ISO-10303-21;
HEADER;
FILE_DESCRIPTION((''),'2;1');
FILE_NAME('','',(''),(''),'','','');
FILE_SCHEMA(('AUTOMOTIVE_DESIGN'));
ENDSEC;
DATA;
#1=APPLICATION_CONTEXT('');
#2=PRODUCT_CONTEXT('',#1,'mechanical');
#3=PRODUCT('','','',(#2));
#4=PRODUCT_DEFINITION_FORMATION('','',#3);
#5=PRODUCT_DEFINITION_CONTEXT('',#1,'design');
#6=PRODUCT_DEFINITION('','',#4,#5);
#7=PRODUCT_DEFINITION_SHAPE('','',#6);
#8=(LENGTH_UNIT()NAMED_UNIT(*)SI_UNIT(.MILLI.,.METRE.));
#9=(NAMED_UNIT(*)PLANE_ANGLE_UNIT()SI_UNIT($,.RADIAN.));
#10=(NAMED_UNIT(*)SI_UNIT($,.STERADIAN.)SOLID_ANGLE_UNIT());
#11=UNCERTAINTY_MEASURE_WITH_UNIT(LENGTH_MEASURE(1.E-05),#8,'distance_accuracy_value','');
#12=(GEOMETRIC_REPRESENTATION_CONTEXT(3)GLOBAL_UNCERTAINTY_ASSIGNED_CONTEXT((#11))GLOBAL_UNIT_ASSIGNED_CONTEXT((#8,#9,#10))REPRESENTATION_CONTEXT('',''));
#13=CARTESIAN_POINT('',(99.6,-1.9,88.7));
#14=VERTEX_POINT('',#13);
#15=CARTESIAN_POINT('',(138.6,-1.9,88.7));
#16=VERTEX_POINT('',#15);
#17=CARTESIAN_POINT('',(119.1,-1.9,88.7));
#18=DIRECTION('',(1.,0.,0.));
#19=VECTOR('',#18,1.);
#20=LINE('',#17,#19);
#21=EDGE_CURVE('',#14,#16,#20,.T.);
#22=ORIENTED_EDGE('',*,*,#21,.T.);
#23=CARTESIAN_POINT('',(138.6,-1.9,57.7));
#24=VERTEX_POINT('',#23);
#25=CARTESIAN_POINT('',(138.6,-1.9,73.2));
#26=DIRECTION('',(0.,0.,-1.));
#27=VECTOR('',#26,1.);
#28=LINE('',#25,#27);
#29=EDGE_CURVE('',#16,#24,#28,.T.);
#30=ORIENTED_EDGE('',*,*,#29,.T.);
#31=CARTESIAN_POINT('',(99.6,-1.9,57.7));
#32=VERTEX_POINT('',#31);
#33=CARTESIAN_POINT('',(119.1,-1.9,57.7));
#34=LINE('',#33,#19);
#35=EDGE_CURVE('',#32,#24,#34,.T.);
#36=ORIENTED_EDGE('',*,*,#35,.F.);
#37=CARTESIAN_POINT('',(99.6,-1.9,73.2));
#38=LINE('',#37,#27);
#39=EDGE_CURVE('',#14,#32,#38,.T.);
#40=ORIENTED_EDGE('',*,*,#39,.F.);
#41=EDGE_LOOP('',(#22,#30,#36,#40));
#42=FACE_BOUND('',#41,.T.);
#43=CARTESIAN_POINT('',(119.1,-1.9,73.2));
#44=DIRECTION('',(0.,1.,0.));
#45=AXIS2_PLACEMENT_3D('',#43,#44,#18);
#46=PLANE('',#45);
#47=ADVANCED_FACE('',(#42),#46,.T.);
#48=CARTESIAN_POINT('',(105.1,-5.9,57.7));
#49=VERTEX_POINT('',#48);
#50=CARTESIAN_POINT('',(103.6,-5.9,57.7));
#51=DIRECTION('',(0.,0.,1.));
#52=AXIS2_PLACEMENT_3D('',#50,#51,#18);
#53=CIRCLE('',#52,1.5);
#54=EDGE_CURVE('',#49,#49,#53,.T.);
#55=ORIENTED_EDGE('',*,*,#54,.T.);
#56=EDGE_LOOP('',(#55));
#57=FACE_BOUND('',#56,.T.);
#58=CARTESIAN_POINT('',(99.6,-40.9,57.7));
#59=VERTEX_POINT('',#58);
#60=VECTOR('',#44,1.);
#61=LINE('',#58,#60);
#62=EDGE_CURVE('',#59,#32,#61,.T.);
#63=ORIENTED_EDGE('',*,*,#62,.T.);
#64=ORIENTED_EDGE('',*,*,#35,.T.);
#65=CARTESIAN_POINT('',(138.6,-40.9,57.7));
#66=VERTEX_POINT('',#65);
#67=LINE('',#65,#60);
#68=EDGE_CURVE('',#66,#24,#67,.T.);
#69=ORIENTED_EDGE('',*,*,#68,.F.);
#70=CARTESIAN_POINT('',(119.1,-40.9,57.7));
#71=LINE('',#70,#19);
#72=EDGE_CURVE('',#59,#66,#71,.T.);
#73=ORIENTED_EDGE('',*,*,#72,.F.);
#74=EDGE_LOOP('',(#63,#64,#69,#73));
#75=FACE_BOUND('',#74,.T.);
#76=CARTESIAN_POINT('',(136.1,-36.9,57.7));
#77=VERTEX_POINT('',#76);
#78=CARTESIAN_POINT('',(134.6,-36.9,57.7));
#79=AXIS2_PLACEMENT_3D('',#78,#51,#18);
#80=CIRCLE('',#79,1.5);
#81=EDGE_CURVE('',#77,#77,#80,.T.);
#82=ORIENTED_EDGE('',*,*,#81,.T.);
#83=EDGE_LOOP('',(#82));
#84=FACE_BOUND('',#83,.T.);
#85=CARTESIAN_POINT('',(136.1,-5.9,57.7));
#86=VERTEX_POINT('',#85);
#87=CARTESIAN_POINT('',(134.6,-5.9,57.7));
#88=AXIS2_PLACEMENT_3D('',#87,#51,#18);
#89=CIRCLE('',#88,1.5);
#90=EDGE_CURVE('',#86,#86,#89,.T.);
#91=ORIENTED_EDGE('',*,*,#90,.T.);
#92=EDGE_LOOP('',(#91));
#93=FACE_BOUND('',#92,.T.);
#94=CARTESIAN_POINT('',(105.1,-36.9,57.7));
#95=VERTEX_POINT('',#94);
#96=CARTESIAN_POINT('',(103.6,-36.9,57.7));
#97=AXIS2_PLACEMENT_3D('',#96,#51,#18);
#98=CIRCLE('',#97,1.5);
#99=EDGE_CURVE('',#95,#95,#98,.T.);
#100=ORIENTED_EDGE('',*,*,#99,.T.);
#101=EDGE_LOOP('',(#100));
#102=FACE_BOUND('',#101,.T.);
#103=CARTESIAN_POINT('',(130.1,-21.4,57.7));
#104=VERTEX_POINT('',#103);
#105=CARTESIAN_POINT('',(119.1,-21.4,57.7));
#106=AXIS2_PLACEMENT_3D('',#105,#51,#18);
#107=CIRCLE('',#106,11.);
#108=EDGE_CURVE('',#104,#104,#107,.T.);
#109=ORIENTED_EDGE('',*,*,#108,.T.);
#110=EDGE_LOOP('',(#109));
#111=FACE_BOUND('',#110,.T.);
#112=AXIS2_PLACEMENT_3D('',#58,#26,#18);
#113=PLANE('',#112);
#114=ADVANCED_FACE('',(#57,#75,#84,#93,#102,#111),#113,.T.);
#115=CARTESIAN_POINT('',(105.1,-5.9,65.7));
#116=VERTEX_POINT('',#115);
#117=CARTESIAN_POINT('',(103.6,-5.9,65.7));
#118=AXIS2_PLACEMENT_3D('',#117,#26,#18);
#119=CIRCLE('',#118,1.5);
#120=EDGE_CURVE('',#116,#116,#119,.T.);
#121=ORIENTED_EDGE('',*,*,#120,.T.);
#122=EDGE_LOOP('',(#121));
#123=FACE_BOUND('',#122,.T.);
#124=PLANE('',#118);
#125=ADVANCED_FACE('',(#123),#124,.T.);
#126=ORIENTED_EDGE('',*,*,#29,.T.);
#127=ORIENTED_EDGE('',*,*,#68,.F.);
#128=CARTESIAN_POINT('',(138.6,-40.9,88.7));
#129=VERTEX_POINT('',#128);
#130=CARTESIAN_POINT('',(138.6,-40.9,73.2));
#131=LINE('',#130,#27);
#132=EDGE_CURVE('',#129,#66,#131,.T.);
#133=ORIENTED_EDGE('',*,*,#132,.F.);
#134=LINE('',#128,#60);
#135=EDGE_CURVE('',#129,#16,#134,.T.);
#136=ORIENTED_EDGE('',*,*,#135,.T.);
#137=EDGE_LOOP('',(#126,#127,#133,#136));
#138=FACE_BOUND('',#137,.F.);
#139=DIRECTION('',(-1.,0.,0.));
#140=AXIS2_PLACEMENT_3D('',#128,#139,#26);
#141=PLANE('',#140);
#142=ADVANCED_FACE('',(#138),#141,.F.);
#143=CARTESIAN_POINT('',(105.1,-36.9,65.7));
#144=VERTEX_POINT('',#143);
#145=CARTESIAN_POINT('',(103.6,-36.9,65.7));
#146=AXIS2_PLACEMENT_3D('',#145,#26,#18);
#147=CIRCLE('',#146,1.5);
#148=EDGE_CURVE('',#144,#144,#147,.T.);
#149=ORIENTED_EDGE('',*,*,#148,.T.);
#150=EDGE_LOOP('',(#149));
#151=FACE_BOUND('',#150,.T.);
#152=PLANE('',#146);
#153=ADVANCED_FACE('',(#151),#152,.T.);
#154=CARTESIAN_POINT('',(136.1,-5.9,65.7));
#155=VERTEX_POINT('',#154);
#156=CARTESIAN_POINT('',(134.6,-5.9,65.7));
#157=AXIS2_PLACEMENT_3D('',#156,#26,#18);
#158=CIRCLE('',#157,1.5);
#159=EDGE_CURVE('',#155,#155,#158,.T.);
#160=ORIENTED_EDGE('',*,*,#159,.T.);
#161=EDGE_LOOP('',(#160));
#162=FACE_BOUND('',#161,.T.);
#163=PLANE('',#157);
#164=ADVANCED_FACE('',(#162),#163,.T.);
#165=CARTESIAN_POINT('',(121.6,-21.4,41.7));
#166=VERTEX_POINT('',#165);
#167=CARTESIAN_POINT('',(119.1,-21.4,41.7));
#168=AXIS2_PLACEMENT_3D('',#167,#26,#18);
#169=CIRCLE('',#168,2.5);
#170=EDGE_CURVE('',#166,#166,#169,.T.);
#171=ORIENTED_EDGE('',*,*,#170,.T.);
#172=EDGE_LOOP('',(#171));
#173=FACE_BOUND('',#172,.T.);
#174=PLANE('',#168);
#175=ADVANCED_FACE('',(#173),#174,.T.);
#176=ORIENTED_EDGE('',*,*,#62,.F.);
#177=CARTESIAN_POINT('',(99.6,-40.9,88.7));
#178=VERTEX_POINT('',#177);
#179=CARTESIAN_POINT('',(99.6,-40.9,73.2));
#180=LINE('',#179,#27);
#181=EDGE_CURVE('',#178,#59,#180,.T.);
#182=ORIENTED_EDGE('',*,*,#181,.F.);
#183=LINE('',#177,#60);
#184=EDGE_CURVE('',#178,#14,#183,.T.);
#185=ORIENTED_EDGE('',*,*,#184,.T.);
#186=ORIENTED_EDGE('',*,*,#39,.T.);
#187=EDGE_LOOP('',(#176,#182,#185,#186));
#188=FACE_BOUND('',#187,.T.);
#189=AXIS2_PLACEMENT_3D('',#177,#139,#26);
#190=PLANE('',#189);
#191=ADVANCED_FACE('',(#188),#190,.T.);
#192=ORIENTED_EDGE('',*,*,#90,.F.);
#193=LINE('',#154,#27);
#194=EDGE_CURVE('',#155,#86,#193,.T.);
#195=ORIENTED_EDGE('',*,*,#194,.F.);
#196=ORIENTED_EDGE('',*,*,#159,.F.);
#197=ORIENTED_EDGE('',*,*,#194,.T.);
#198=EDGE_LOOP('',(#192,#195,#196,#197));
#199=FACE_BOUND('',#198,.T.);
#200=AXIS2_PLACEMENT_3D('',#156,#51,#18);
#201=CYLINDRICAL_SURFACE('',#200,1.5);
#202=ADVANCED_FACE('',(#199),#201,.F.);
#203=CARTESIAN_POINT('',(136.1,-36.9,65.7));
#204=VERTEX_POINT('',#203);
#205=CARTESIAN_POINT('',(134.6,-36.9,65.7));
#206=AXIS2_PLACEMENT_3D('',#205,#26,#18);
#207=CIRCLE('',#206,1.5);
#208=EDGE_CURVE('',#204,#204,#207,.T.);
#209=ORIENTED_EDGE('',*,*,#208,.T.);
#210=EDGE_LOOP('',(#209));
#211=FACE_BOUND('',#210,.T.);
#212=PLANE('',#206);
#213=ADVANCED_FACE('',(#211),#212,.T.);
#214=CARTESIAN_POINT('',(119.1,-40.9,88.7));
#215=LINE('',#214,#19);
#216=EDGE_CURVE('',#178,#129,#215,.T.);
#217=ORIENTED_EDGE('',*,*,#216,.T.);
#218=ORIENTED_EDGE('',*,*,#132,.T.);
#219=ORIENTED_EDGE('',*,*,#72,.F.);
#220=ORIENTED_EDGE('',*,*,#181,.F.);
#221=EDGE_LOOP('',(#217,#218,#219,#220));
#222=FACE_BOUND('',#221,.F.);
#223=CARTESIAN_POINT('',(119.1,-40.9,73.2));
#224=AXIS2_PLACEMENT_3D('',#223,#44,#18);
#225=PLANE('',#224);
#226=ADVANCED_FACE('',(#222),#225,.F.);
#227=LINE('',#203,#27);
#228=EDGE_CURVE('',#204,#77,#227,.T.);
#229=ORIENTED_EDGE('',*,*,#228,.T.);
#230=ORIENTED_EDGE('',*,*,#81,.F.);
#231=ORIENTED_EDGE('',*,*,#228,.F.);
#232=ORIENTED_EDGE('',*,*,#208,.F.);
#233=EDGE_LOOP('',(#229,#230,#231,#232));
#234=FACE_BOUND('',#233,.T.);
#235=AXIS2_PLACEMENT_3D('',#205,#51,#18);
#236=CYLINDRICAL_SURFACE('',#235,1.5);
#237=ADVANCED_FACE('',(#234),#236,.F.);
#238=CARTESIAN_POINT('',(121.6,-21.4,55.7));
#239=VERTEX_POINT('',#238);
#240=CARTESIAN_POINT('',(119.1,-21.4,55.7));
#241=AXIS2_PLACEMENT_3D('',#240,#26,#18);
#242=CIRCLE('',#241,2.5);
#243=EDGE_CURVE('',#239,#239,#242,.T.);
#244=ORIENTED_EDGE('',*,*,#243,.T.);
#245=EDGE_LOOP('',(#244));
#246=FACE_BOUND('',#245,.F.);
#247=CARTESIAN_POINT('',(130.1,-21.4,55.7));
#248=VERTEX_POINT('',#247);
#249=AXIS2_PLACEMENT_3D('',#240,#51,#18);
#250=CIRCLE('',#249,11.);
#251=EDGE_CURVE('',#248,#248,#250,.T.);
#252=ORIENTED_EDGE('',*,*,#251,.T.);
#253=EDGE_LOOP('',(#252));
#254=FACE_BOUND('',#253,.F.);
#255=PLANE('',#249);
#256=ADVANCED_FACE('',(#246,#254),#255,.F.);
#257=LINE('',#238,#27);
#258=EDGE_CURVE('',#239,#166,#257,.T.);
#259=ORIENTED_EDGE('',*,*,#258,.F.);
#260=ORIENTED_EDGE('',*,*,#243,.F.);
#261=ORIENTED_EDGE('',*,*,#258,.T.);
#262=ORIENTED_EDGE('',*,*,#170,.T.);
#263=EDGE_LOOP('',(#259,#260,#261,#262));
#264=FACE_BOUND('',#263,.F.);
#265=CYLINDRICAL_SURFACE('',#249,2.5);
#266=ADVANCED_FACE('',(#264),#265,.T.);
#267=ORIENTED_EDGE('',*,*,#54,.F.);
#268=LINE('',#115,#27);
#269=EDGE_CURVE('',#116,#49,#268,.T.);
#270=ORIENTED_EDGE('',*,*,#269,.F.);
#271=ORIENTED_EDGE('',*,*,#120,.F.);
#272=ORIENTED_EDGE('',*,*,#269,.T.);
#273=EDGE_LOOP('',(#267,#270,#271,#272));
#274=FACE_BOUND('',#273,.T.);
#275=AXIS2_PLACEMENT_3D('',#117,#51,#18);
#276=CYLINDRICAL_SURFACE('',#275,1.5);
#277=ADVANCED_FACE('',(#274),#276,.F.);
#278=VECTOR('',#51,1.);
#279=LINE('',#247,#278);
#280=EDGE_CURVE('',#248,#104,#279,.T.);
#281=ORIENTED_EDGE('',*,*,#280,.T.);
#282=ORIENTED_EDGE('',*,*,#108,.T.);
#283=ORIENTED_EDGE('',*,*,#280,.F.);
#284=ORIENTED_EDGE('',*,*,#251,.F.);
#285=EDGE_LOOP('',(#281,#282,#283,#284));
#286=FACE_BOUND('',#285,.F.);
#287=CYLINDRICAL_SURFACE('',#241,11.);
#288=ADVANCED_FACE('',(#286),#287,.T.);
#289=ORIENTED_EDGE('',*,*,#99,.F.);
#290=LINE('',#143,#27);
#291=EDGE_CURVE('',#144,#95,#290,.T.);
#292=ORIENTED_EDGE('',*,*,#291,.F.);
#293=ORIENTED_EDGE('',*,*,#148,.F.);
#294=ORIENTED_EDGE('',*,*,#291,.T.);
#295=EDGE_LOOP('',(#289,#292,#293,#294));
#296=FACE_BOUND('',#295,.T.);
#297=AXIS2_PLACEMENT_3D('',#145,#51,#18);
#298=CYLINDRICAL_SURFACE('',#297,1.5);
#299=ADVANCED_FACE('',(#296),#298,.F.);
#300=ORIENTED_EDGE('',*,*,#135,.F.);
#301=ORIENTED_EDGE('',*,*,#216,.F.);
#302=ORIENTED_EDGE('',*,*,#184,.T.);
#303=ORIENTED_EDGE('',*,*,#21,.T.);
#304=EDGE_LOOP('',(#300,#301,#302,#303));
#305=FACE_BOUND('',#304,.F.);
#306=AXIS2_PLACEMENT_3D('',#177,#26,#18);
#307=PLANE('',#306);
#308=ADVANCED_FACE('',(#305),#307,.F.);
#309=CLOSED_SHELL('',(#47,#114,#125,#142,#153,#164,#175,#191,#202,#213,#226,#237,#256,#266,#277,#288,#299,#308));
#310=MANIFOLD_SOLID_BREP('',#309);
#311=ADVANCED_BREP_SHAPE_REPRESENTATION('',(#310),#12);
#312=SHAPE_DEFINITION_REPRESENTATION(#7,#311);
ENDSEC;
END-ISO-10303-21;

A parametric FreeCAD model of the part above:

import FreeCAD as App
import Part
import Sketcher


def add_polygon(sketch, points):
    """Adds a closed chain of lines whose ends are joined by coincident constraints."""
    first, n = sketch.GeometryCount, len(points)
    for a, b in zip(points, points[1:] + points[:1]):
        sketch.addGeometry(Part.LineSegment(App.Vector(*a, 0), App.Vector(*b, 0)), False)
    for i in range(n):
        sketch.addConstraint(Sketcher.Constraint("Coincident", first + i, 2, first + (i + 1) % n, 1))

doc = App.newDocument("Part")
params = doc.addObject("Spreadsheet::Sheet", "Params")
for row, (alias, value) in enumerate([
    ("sketch1_diameter", "22 mm"),
    ("pad1_length", "2 mm"),
    ("sketch2_diameter", "5 mm"),
    ("pad2_length", "14 mm"),
    ("sketch3_diameter", "3 mm"),
    ("pad3_length", "10 mm"),
    ("sketch4_diameter", "3 mm"),
    ("pad4_length", "10 mm"),
    ("sketch5_diameter", "3 mm"),
    ("pad5_length", "10 mm"),
    ("sketch6_diameter", "3 mm"),
    ("pad6_length", "10 mm"),
    ("sketch7_width", "39 mm"),
    ("sketch7_height", "31 mm"),
    ("pad7_length", "39 mm"),
], start=1):
    params.set(f"A{row}", alias)
    params.set(f"B{row}", "=" + value)
    params.setAlias(f"B{row}", alias)

body = doc.addObject("PartDesign::Body", "Body")

# Sketch on XZ plane
sketch1 = body.newObject("Sketcher::SketchObject", "Sketch")
sketch1.AttachmentSupport = (doc.getObject("XZ_Plane"), [""])
sketch1.MapMode = "FlatFace"
sketch1.AttachmentOffset = App.Placement(App.Vector(0, 0, -33), App.Rotation())
sketch1.addGeometry(Part.Circle(App.Vector(19.5, 19.5, 0), App.Vector(0, 0, 1), 11), False)
sketch1.addConstraint([
    Sketcher.Constraint("Diameter", 0, 22.0),
    Sketcher.Constraint("DistanceX", -1, 1, 0, 3, 19.5),
    Sketcher.Constraint("DistanceY", -1, 1, 0, 3, 19.5),
])
sketch1.setExpression("Constraints[0]", "Params.sketch1_diameter")
pad1 = body.newObject("PartDesign::Pad", "Pad")
pad1.Profile = sketch1
pad1.setExpression("Length", "Params.pad1_length")
body2 = doc.addObject("PartDesign::Body", "Body001")

# Sketch on XZ plane
sketch2 = body2.newObject("Sketcher::SketchObject", "Sketch001")
sketch2.AttachmentSupport = (doc.getObject("XZ_Plane001"), [""])
sketch2.MapMode = "FlatFace"
sketch2.AttachmentOffset = App.Placement(App.Vector(0, 0, -33), App.Rotation())
sketch2.addGeometry(Part.Circle(App.Vector(19.5, 19.5, 0), App.Vector(0, 0, 1), 2.5), False)
sketch2.addConstraint([
    Sketcher.Constraint("Diameter", 0, 5.0),
    Sketcher.Constraint("DistanceX", -1, 1, 0, 3, 19.5),
    Sketcher.Constraint("DistanceY", -1, 1, 0, 3, 19.5),
])
sketch2.setExpression("Constraints[0]", "Params.sketch2_diameter")
pad2 = body2.newObject("PartDesign::Pad", "Pad001")
pad2.Profile = sketch2
pad2.setExpression("Length", "Params.pad2_length")
pad2.Reversed = True
body3 = doc.addObject("PartDesign::Body", "Body002")

# Sketch on XZ plane
sketch3 = body3.newObject("Sketcher::SketchObject", "Sketch002")
sketch3.AttachmentSupport = (doc.getObject("XZ_Plane002"), [""])
sketch3.MapMode = "FlatFace"
sketch3.AttachmentOffset = App.Placement(App.Vector(0, 0, -23), App.Rotation())
sketch3.addGeometry(Part.Circle(App.Vector(35, 35, 0), App.Vector(0, 0, 1), 1.5), False)
sketch3.addConstraint([
    Sketcher.Constraint("Diameter", 0, 3.0),
    Sketcher.Constraint("DistanceX", -1, 1, 0, 3, 35.0),
    Sketcher.Constraint("DistanceY", -1, 1, 0, 3, 35.0),
])
sketch3.setExpression("Constraints[0]", "Params.sketch3_diameter")
pad3 = body3.newObject("PartDesign::Pad", "Pad002")
pad3.Profile = sketch3
pad3.setExpression("Length", "Params.pad3_length")
pad3.Reversed = True
body4 = doc.addObject("PartDesign::Body", "Body003")

# Sketch on XZ plane
sketch4 = body4.newObject("Sketcher::SketchObject", "Sketch003")
sketch4.AttachmentSupport = (doc.getObject("XZ_Plane003"), [""])
sketch4.MapMode = "FlatFace"
sketch4.AttachmentOffset = App.Placement(App.Vector(0, 0, -23), App.Rotation())
sketch4.addGeometry(Part.Circle(App.Vector(35, 4, 0), App.Vector(0, 0, 1), 1.5), False)
sketch4.addConstraint([
    Sketcher.Constraint("Diameter", 0, 3.0),
    Sketcher.Constraint("DistanceX", -1, 1, 0, 3, 35.0),
    Sketcher.Constraint("DistanceY", -1, 1, 0, 3, 4.0),
])
sketch4.setExpression("Constraints[0]", "Params.sketch4_diameter")
pad4 = body4.newObject("PartDesign::Pad", "Pad003")
pad4.Profile = sketch4
pad4.setExpression("Length", "Params.pad4_length")
pad4.Reversed = True
body5 = doc.addObject("PartDesign::Body", "Body004")

# Sketch on XZ plane
sketch5 = body5.newObject("Sketcher::SketchObject", "Sketch004")
sketch5.AttachmentSupport = (doc.getObject("XZ_Plane004"), [""])
sketch5.MapMode = "FlatFace"
sketch5.AttachmentOffset = App.Placement(App.Vector(0, 0, -23), App.Rotation())
sketch5.addGeometry(Part.Circle(App.Vector(4, 4, 0), App.Vector(0, 0, 1), 1.5), False)
sketch5.addConstraint([
    Sketcher.Constraint("Diameter", 0, 3.0),
    Sketcher.Constraint("DistanceX", -1, 1, 0, 3, 4.0),
    Sketcher.Constraint("DistanceY", -1, 1, 0, 3, 4.0),
])
sketch5.setExpression("Constraints[0]", "Params.sketch5_diameter")
pad5 = body5.newObject("PartDesign::Pad", "Pad004")
pad5.Profile = sketch5
pad5.setExpression("Length", "Params.pad5_length")
pad5.Reversed = True
body6 = doc.addObject("PartDesign::Body", "Body005")

# Sketch on XZ plane
sketch6 = body6.newObject("Sketcher::SketchObject", "Sketch005")
sketch6.AttachmentSupport = (doc.getObject("XZ_Plane005"), [""])
sketch6.MapMode = "FlatFace"
sketch6.AttachmentOffset = App.Placement(App.Vector(0, 0, -23), App.Rotation())
sketch6.addGeometry(Part.Circle(App.Vector(4, 35, 0), App.Vector(0, 0, 1), 1.5), False)
sketch6.addConstraint([
    Sketcher.Constraint("Diameter", 0, 3.0),
    Sketcher.Constraint("DistanceX", -1, 1, 0, 3, 4.0),
    Sketcher.Constraint("DistanceY", -1, 1, 0, 3, 35.0),
])
sketch6.setExpression("Constraints[0]", "Params.sketch6_diameter")
pad6 = body6.newObject("PartDesign::Pad", "Pad005")
pad6.Profile = sketch6
pad6.setExpression("Length", "Params.pad6_length")
pad6.Reversed = True
body7 = doc.addObject("PartDesign::Body", "Body006")

# Sketch on XY plane
sketch7 = body7.newObject("Sketcher::SketchObject", "Sketch006")
sketch7.AttachmentSupport = (doc.getObject("XY_Plane006"), [""])
sketch7.MapMode = "FlatFace"
add_polygon(sketch7, [(0, 31), (0, 0), (39, 0), (39, 31)])  # lines 0-3
sketch7.addConstraint([
    Sketcher.Constraint("Vertical", 0),
    Sketcher.Constraint("Horizontal", 1),
    Sketcher.Constraint("Vertical", 2),
    Sketcher.Constraint("Horizontal", 3),
    Sketcher.Constraint("Coincident", 0, 2, -1, 1),
    Sketcher.Constraint("DistanceX", 1, 1, 1, 2, 39.0),
    Sketcher.Constraint("DistanceY", 0, 2, 0, 1, 31.0),
])
sketch7.setExpression("Constraints[9]", "Params.sketch7_width")
sketch7.setExpression("Constraints[10]", "Params.sketch7_height")
pad7 = body7.newObject("PartDesign::Pad", "Pad006")
pad7.Profile = sketch7
pad7.setExpression("Length", "Params.pad7_length")
doc.recompute()

boolean = body7.newObject("PartDesign::Boolean", "Boolean")
boolean.Type = "Cut"
boolean.addObjects([body6])
doc.recompute()

boolean2 = body7.newObject("PartDesign::Boolean", "Boolean001")
boolean2.Type = "Cut"
boolean2.addObjects([body5])
doc.recompute()

boolean3 = body7.newObject("PartDesign::Boolean", "Boolean002")
boolean3.Type = "Cut"
boolean3.addObjects([body4])
doc.recompute()

boolean4 = body7.newObject("PartDesign::Boolean", "Boolean003")
boolean4.Type = "Cut"
boolean4.addObjects([body3])
doc.recompute()

boolean5 = body7.newObject("PartDesign::Boolean", "Boolean004")
boolean5.Type = "Fuse"
boolean5.addObjects([body])
doc.recompute()

boolean6 = body7.newObject("PartDesign::Boolean", "Boolean005")
boolean6.Type = "Fuse"
boolean6.addObjects([body2])
body8 = doc.addObject("PartDesign::Body", "Body007")
doc.recompute()

body7.Placement = App.Placement(App.Vector(99.6, -40.9, 88.7), App.Rotation(App.Vector(-1, 0, 0), 90))
boolean7 = body8.newObject("PartDesign::Boolean", "Boolean006")
boolean7.Type = "Fuse"
boolean7.addObjects([body7])

doc.recompute()
